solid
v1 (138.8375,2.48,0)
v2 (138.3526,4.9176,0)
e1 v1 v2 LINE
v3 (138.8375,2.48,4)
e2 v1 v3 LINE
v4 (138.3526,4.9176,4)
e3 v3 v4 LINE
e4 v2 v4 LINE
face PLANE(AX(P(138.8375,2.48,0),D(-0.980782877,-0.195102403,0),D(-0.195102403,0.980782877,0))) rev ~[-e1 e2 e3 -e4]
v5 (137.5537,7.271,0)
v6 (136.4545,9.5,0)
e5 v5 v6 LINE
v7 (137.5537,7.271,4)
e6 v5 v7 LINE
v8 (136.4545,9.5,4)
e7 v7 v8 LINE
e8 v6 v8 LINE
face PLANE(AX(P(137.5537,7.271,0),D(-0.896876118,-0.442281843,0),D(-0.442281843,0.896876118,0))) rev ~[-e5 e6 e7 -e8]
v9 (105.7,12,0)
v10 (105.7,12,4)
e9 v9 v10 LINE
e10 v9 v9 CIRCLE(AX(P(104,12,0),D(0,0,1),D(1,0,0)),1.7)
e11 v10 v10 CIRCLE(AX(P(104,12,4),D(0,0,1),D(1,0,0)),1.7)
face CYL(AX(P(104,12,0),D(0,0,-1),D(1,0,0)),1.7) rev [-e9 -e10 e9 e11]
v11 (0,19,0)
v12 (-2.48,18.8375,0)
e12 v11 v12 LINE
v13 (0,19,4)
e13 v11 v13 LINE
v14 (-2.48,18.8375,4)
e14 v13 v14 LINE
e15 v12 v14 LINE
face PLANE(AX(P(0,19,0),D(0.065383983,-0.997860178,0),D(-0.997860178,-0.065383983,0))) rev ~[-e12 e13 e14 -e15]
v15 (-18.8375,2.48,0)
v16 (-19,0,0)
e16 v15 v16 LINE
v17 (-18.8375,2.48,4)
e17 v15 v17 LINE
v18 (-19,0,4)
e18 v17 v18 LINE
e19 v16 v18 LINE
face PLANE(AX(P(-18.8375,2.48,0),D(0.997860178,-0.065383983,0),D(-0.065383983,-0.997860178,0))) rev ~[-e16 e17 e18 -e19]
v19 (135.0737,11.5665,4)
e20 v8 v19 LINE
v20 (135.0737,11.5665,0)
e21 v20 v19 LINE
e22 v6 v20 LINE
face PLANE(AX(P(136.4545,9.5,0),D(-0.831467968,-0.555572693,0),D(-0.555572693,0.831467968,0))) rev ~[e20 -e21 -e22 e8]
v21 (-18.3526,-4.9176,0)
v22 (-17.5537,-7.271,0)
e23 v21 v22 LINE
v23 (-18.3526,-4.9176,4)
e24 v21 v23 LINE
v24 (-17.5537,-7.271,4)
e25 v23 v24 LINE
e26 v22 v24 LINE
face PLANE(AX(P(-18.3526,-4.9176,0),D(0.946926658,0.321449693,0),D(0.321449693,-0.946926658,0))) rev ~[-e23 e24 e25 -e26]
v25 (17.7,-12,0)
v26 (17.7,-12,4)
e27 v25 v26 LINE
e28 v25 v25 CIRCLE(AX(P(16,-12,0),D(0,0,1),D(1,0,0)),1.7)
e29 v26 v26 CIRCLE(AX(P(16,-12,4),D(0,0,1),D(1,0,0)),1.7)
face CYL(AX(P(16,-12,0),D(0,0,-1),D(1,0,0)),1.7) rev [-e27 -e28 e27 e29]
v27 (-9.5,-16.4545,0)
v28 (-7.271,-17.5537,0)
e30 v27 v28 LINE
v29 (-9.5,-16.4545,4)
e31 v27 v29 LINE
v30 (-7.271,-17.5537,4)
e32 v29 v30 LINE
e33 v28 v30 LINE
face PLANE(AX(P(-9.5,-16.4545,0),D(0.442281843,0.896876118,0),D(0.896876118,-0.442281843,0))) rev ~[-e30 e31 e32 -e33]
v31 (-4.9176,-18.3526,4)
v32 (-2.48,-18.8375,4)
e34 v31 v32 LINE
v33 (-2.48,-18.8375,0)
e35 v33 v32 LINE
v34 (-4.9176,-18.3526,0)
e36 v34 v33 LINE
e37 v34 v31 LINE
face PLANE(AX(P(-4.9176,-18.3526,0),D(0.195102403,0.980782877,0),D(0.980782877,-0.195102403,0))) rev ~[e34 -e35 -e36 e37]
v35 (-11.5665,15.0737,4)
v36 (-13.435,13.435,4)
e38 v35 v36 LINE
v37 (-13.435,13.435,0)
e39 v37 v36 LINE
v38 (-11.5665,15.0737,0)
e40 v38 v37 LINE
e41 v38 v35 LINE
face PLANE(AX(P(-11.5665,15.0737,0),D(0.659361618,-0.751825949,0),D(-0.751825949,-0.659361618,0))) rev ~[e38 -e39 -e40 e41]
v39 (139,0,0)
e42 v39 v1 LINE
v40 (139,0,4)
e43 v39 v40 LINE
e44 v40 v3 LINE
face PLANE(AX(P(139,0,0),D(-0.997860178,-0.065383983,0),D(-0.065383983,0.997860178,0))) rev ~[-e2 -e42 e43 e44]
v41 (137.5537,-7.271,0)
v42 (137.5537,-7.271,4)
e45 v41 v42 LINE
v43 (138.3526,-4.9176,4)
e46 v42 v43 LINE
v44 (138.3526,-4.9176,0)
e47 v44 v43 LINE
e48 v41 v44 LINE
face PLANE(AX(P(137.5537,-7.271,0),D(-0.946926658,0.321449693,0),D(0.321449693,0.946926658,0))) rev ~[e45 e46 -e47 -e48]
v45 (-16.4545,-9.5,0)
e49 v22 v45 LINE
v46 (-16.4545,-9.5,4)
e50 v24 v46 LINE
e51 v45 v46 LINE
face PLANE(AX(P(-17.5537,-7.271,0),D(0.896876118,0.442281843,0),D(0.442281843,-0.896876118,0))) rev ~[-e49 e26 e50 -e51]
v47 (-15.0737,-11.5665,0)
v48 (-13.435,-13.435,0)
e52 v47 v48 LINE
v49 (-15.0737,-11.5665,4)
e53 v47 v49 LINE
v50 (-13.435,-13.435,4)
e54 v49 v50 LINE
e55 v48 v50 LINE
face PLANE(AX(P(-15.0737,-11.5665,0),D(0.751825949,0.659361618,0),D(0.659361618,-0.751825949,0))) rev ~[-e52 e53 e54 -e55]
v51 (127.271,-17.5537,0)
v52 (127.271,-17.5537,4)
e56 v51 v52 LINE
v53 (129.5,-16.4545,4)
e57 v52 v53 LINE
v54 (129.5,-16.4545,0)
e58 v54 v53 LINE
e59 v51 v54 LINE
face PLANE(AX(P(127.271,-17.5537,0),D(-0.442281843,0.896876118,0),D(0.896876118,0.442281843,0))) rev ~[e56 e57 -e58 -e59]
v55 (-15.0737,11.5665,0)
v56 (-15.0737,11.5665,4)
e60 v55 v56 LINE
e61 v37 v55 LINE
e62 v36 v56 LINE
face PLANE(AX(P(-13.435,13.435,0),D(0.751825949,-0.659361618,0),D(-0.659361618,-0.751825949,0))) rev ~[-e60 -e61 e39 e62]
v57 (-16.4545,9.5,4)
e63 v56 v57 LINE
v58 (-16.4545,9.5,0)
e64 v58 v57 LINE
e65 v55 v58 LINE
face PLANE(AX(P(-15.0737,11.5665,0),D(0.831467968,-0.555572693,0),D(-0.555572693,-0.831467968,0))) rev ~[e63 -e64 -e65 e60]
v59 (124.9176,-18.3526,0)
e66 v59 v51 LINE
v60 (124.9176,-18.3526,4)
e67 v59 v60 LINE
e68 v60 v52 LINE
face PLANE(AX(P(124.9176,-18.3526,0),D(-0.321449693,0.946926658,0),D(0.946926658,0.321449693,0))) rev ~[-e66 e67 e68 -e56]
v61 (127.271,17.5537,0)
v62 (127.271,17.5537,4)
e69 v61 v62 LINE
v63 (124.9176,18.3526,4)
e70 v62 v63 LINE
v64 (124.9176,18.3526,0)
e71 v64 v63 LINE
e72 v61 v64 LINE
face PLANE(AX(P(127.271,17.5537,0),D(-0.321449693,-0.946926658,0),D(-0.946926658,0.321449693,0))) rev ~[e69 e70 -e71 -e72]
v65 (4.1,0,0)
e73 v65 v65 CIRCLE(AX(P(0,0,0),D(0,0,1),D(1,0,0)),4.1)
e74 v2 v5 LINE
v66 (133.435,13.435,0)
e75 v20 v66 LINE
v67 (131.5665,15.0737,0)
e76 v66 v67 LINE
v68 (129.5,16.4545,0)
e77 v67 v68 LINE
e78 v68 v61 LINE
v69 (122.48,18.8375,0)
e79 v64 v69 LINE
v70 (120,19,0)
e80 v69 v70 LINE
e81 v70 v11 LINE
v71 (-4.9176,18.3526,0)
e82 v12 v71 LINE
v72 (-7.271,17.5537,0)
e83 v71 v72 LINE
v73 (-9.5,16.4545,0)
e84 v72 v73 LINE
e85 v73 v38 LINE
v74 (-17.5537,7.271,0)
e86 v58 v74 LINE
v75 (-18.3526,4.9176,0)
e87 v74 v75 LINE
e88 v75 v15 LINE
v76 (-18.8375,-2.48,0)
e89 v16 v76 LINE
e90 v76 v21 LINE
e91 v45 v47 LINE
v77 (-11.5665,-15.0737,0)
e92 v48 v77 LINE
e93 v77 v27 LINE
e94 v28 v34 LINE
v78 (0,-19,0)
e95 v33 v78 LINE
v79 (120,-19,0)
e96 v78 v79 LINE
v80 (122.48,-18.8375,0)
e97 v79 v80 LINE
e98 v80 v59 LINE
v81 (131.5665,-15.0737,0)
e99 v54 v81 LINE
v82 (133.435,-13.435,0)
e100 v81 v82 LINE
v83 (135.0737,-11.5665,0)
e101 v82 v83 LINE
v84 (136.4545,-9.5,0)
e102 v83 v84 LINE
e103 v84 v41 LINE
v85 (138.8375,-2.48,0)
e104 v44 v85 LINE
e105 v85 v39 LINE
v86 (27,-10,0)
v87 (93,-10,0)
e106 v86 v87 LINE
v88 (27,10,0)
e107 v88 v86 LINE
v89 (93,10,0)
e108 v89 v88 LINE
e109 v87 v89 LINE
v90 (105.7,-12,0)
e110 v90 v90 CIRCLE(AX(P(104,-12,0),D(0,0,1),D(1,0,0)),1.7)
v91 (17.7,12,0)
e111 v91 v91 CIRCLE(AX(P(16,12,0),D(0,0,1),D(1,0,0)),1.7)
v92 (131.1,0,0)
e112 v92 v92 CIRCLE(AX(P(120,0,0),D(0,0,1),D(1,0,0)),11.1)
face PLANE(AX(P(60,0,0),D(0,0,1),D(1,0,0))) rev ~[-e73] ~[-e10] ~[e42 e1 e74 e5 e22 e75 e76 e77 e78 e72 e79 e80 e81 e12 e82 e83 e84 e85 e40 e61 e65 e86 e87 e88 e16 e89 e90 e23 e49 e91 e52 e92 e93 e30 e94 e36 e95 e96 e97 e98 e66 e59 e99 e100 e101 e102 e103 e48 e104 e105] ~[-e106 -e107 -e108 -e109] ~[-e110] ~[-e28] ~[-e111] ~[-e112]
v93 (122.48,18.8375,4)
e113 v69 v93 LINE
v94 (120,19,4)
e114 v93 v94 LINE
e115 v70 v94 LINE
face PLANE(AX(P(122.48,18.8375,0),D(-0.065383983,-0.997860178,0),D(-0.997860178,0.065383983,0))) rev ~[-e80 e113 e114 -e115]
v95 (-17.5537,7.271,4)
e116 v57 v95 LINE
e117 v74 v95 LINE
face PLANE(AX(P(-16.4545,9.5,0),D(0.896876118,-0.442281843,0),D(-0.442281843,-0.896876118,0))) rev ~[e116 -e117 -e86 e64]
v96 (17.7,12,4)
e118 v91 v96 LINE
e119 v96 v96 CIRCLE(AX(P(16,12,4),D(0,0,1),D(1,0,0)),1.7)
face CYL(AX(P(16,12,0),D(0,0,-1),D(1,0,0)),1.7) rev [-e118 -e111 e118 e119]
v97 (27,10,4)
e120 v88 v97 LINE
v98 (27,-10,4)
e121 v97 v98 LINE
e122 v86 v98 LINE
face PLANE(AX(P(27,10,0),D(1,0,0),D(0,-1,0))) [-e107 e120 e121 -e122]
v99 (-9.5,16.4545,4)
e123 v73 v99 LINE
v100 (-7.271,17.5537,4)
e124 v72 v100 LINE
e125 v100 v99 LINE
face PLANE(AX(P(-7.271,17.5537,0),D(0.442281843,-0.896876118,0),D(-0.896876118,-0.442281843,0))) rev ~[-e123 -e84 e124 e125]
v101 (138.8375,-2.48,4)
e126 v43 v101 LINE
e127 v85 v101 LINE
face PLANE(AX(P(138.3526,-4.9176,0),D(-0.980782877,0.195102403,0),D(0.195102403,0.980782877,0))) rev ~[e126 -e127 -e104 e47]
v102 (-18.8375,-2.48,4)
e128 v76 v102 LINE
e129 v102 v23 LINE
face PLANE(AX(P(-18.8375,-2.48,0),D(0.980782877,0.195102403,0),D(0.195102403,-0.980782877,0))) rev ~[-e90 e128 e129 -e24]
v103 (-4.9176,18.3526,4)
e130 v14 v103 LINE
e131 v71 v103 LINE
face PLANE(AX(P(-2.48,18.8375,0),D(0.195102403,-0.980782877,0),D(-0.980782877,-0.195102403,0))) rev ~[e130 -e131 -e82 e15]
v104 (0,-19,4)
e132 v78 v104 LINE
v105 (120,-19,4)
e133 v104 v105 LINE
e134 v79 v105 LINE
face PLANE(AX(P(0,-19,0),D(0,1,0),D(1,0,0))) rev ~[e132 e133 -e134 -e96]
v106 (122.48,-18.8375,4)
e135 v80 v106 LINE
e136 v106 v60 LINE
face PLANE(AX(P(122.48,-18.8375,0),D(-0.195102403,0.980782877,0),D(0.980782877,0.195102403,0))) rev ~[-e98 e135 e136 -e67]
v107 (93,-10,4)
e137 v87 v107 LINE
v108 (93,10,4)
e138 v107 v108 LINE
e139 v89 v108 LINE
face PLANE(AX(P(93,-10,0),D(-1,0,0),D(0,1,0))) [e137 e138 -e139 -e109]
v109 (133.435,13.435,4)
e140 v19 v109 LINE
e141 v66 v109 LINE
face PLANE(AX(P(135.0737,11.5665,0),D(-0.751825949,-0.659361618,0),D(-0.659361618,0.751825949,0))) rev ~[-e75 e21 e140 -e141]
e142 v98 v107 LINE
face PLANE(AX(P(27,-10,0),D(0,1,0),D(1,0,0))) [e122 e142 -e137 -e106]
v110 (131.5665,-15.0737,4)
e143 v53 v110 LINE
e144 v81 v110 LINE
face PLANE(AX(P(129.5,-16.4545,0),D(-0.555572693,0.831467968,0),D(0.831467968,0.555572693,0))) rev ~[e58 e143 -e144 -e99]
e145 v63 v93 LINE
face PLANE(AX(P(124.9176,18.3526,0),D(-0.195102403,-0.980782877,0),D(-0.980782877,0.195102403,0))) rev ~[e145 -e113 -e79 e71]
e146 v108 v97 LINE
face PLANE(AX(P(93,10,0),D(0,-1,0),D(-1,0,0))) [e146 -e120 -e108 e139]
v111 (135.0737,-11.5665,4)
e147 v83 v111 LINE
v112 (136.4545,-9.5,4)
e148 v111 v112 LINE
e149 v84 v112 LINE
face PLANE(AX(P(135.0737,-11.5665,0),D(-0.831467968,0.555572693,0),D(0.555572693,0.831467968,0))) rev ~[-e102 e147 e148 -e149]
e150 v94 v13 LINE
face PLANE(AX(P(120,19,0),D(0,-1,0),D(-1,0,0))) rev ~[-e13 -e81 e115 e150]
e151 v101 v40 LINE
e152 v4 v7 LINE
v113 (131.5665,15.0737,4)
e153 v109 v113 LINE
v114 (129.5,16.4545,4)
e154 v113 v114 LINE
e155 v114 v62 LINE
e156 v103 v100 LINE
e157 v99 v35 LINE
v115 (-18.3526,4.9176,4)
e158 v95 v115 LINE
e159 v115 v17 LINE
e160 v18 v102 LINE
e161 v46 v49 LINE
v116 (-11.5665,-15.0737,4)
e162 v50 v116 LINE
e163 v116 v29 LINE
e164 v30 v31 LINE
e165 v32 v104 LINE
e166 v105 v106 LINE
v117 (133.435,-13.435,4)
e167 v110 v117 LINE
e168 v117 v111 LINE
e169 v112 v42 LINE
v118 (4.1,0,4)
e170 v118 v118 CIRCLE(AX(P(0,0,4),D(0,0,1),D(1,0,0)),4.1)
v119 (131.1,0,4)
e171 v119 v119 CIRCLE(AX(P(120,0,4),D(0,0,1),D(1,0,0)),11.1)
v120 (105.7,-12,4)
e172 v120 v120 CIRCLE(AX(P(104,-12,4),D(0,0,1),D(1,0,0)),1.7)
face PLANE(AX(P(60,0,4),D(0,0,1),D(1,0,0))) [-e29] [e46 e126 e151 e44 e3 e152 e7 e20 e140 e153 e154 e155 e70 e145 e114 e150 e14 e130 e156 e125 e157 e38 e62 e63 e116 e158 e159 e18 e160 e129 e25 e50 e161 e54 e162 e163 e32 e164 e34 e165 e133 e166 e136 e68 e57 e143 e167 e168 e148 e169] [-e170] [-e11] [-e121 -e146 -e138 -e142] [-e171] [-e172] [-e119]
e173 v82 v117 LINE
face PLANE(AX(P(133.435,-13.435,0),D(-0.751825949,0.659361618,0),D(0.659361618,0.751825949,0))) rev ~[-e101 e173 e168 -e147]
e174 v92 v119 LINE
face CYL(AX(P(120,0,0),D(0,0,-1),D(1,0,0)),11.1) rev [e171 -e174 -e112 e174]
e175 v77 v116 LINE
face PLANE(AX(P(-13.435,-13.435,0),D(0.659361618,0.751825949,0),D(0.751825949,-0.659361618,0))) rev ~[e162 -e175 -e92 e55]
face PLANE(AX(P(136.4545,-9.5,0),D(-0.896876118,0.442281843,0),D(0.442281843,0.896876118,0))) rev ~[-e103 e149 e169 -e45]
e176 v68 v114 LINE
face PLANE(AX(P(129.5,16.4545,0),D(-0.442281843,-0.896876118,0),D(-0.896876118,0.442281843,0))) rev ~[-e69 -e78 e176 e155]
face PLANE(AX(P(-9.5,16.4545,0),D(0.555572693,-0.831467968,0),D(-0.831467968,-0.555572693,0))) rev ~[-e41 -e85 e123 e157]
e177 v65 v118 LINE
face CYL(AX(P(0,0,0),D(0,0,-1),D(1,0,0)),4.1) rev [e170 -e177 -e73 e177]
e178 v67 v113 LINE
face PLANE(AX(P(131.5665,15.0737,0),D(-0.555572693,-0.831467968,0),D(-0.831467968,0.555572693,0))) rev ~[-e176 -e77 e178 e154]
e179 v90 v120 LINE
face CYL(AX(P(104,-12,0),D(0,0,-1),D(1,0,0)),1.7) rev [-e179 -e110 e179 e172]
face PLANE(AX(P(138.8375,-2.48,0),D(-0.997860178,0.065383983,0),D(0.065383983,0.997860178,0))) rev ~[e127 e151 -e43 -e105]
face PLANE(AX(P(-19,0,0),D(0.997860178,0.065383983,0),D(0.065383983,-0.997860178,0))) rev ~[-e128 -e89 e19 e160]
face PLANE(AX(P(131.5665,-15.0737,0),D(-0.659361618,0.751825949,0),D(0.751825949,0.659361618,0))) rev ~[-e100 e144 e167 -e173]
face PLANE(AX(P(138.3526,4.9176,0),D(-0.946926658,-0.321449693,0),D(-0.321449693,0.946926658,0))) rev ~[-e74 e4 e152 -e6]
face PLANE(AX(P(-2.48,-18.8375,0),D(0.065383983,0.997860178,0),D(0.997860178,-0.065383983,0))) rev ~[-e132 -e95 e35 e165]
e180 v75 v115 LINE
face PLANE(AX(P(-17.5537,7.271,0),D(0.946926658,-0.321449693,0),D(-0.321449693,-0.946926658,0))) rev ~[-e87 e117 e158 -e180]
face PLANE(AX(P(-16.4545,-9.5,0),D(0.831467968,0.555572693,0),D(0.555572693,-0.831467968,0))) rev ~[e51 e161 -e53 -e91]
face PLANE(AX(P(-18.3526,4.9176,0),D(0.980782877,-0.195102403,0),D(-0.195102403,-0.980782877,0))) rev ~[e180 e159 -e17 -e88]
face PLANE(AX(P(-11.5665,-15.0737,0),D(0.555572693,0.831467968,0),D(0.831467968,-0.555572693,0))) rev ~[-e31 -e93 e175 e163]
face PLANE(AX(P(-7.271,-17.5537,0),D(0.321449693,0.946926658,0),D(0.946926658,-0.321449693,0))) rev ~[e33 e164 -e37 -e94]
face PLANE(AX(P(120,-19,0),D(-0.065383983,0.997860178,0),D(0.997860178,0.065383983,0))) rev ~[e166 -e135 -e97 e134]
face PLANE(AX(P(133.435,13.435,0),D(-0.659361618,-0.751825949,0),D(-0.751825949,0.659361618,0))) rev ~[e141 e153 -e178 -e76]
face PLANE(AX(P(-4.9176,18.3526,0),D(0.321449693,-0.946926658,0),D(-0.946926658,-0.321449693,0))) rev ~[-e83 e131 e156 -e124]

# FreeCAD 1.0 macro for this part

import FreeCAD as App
import Part
import Sketcher
Q = App.Units.Quantity


def add_polygon(sketch, points):
    """Adds a closed chain of lines whose ends are joined by coincident constraints."""
    first, n = sketch.GeometryCount, len(points)
    for a, b in zip(points, points[1:] + points[:1]):
        sketch.addGeometry(Part.LineSegment(App.Vector(*a, 0), App.Vector(*b, 0)), False)
    for i in range(n):
        sketch.addConstraint(Sketcher.Constraint("Coincident", first + i, 2, first + (i + 1) % n, 1))

doc = App.newDocument("Part")
body = doc.addObject("PartDesign::Body", "Body")

# Sketch on XY plane
sketch1 = body.newObject("Sketcher::SketchObject", "Sketch")
sketch1.AttachmentSupport = (doc.getObject("XY_Plane"), [""])
sketch1.MapMode = "FlatFace"
add_polygon(sketch1, [(0, -19), (120, -19), (122.5, -18.8), (124.9, -18.4), (127.3, -17.6), (129.5, -16.5), (131.6, -15.1), (133.4, -13.4), (135.1, -11.6), (136.5, -9.5), (137.6, -7.3), (138.4, -4.9), (138.8, -2.5), (139, 0), (138.8, 2.5), (138.4, 4.9), (137.6, 7.3), (136.5, 9.5), (135.1, 11.6), (133.4, 13.4), (131.6, 15.1), (129.5, 16.5), (127.3, 17.6), (124.9, 18.4), (122.5, 18.8), (120, 19), (0, 19), (-2.5, 18.8), (-4.9, 18.4), (-7.3, 17.6), (-9.5, 16.5), (-11.6, 15.1), (-13.4, 13.4), (-15.1, 11.6), (-16.5, 9.5), (-17.6, 7.3), (-18.4, 4.9), (-18.8, 2.5), (-19, 0), (-18.8, -2.5), (-18.4, -4.9), (-17.6, -7.3), (-16.5, -9.5), (-15.1, -11.6), (-13.4, -13.4), (-11.6, -15.1), (-9.5, -16.5), (-7.3, -17.6), (-4.9, -18.4), (-2.5, -18.8)])  # lines 0-49
sketch1.addGeometry(Part.Circle(App.Vector(16, -12, 0), App.Vector(0, 0, 1), 1.7), False)  # 50
sketch1.addGeometry(Part.Circle(App.Vector(104, -12, 0), App.Vector(0, 0, 1), 1.7), False)  # 51
sketch1.addGeometry(Part.Circle(App.Vector(0, 0, 0), App.Vector(0, 0, 1), 4.1), False)  # 52
sketch1.addGeometry(Part.Circle(App.Vector(16, 12, 0), App.Vector(0, 0, 1), 1.7), False)  # 53
add_polygon(sketch1, [(93, -10), (27, -10), (27, 10), (93, 10)])  # lines 54-57
sketch1.addGeometry(Part.Circle(App.Vector(120, 0, 0), App.Vector(0, 0, 1), 11.1), False)  # 58
sketch1.addGeometry(Part.Circle(App.Vector(104, 12, 0), App.Vector(0, 0, 1), 1.7), False)  # 59
sketch1.addConstraint([
    Sketcher.Constraint("Horizontal", 0),
    Sketcher.Constraint("Horizontal", 25),
    Sketcher.Constraint("Horizontal", 54),
    Sketcher.Constraint("Vertical", 55),
    Sketcher.Constraint("Horizontal", 56),
    Sketcher.Constraint("Vertical", 57),
    Sketcher.Constraint("Coincident", 52, 3, -1, 1),
    Sketcher.Constraint("Equal", 50, 51),
    Sketcher.Constraint("Equal", 51, 53),
    Sketcher.Constraint("Equal", 53, 59),
    Sketcher.Constraint("Symmetric", 25, 2, 49, 2, -1, 1),
    Sketcher.Constraint("Symmetric", 50, 3, 53, 3, -1),
    Sketcher.Constraint("Symmetric", 51, 3, 59, 3, -1),
    Sketcher.Constraint("Symmetric", 11, 2, 13, 2, -1),
    Sketcher.Constraint("Symmetric", 10, 2, 14, 2, -1),
    Sketcher.Constraint("Symmetric", 9, 2, 15, 2, -1),
    Sketcher.Constraint("Symmetric", 8, 2, 16, 2, -1),
    Sketcher.Constraint("Symmetric", 7, 2, 17, 2, -1),
    Sketcher.Constraint("Symmetric", 6, 2, 18, 2, -1),
    Sketcher.Constraint("Symmetric", 5, 2, 19, 2, -1),
    Sketcher.Constraint("Symmetric", 4, 2, 20, 2, -1),
    Sketcher.Constraint("Symmetric", 3, 2, 21, 2, -1),
    Sketcher.Constraint("Symmetric", 2, 2, 22, 2, -1),
    Sketcher.Constraint("Symmetric", 1, 2, 23, 2, -1),
    Sketcher.Constraint("Symmetric", 36, 2, 38, 2, -1),
    Sketcher.Constraint("Symmetric", 35, 2, 39, 2, -1),
    Sketcher.Constraint("Symmetric", 34, 2, 40, 2, -1),
    Sketcher.Constraint("Symmetric", 33, 2, 41, 2, -1),
    Sketcher.Constraint("Symmetric", 32, 2, 42, 2, -1),
    Sketcher.Constraint("Symmetric", 31, 2, 43, 2, -1),
    Sketcher.Constraint("Symmetric", 30, 2, 44, 2, -1),
    Sketcher.Constraint("Symmetric", 29, 2, 45, 2, -1),
    Sketcher.Constraint("Symmetric", 28, 2, 46, 2, -1),
    Sketcher.Constraint("Symmetric", 27, 2, 47, 2, -1),
    Sketcher.Constraint("Symmetric", 26, 2, 48, 2, -1),
    Sketcher.Constraint("PointOnObject", 58, 3, -1),
    Sketcher.Constraint("PointOnObject", 12, 2, -1),
    Sketcher.Constraint("PointOnObject", 25, 2, -2),
    Sketcher.Constraint("PointOnObject", 37, 2, -1),
    Sketcher.Constraint("Perpendicular", 1, 13),
    Sketcher.Constraint("Perpendicular", 2, 14),
    Sketcher.Constraint("Perpendicular", 3, 15),
    Sketcher.Constraint("Perpendicular", 4, 16),
    Sketcher.Constraint("Perpendicular", 5, 17),
    Sketcher.Constraint("Perpendicular", 6, 18),
    Sketcher.Constraint("Perpendicular", 12, 24),
    Sketcher.Constraint("Perpendicular", 13, 26),
    Sketcher.Constraint("Perpendicular", 14, 27),
    Sketcher.Constraint("Perpendicular", 15, 28),
    Sketcher.Constraint("Perpendicular", 16, 29),
    Sketcher.Constraint("Perpendicular", 17, 30),
    Sketcher.Constraint("Perpendicular", 18, 31),
    Sketcher.Constraint("Perpendicular", 19, 32),
    Sketcher.Constraint("Perpendicular", 20, 33),
    Sketcher.Constraint("Perpendicular", 21, 34),
    Sketcher.Constraint("Perpendicular", 22, 35),
    Sketcher.Constraint("Perpendicular", 23, 36),
    Sketcher.Constraint("Perpendicular", 24, 37),
    Sketcher.Constraint("Horizontal", 50, 3, 51, 3),
    Sketcher.Constraint("Horizontal", 23, 2, 26, 2),
    Sketcher.Constraint("Horizontal", 22, 2, 27, 2),
    Sketcher.Constraint("Horizontal", 21, 2, 28, 2),
    Sketcher.Constraint("Horizontal", 20, 2, 29, 2),
    Sketcher.Constraint("Horizontal", 19, 2, 30, 2),
    Sketcher.Constraint("Horizontal", 18, 2, 31, 2),
    Sketcher.Constraint("Horizontal", 17, 2, 32, 2),
    Sketcher.Constraint("Horizontal", 16, 2, 33, 2),
    Sketcher.Constraint("Horizontal", 15, 2, 34, 2),
    Sketcher.Constraint("Horizontal", 14, 2, 35, 2),
    Sketcher.Constraint("Horizontal", 13, 2, 36, 2),
    Sketcher.Constraint("Vertical", 58, 3, 0, 2),
    Sketcher.Constraint("Equal", 1, 2),
    Sketcher.Constraint("Equal", 2, 3),
    Sketcher.Constraint("Equal", 3, 4),
    Sketcher.Constraint("Equal", 4, 5),
    Sketcher.Constraint("Equal", 5, 6),
    Sketcher.Constraint("Equal", 6, 7),
    Sketcher.Constraint("Equal", 7, 8),
    Sketcher.Constraint("Equal", 8, 9),
    Sketcher.Constraint("Equal", 9, 10),
    Sketcher.Constraint("Equal", 10, 11),
    Sketcher.Constraint("Equal", 11, 12),
    Sketcher.Constraint("Diameter", 50, Q("3.4 mm")),
    Sketcher.Constraint("Diameter", 52, Q("8.2 mm")),
    Sketcher.Constraint("Diameter", 58, Q("22.2 mm")),
    Sketcher.Constraint("DistanceX", 0, 1, 0, 2, Q("120 mm")),
    Sketcher.Constraint("DistanceX", 54, 2, 54, 1, Q("66 mm")),
    Sketcher.Constraint("DistanceY", 55, 1, 55, 2, Q("20 mm")),
    Sketcher.Constraint("DistanceX", -1, 1, 50, 3, Q("16 mm")),
    Sketcher.Constraint("DistanceY", 50, 3, -1, 1, Q("12 mm")),
    Sketcher.Constraint("DistanceX", -1, 1, 51, 3, Q("104 mm")),
    Sketcher.Constraint("DistanceY", 0, 2, -1, 1, Q("19 mm")),
    Sketcher.Constraint("DistanceX", -1, 1, 54, 2, Q("27 mm")),
    Sketcher.Constraint("DistanceY", 54, 2, -1, 1, Q("10 mm")),
    Sketcher.Constraint("DistanceX", -1, 1, 4, 2, Q("129.5 mm")),
    Sketcher.Constraint("Angle", 1, Q("3.749 deg")),
    Sketcher.Constraint("Angle", 2, Q("11.2507 deg")),
    Sketcher.Constraint("Angle", 3, Q("18.7506 deg")),
    Sketcher.Constraint("Angle", 4, Q("26.2496 deg")),
    Sketcher.Constraint("Angle", 5, Q("33.7502 deg")),
])
pad1 = body.newObject("PartDesign::Pad", "Pad")
pad1.Profile = sketch1
pad1.Length = 4

doc.recompute()
